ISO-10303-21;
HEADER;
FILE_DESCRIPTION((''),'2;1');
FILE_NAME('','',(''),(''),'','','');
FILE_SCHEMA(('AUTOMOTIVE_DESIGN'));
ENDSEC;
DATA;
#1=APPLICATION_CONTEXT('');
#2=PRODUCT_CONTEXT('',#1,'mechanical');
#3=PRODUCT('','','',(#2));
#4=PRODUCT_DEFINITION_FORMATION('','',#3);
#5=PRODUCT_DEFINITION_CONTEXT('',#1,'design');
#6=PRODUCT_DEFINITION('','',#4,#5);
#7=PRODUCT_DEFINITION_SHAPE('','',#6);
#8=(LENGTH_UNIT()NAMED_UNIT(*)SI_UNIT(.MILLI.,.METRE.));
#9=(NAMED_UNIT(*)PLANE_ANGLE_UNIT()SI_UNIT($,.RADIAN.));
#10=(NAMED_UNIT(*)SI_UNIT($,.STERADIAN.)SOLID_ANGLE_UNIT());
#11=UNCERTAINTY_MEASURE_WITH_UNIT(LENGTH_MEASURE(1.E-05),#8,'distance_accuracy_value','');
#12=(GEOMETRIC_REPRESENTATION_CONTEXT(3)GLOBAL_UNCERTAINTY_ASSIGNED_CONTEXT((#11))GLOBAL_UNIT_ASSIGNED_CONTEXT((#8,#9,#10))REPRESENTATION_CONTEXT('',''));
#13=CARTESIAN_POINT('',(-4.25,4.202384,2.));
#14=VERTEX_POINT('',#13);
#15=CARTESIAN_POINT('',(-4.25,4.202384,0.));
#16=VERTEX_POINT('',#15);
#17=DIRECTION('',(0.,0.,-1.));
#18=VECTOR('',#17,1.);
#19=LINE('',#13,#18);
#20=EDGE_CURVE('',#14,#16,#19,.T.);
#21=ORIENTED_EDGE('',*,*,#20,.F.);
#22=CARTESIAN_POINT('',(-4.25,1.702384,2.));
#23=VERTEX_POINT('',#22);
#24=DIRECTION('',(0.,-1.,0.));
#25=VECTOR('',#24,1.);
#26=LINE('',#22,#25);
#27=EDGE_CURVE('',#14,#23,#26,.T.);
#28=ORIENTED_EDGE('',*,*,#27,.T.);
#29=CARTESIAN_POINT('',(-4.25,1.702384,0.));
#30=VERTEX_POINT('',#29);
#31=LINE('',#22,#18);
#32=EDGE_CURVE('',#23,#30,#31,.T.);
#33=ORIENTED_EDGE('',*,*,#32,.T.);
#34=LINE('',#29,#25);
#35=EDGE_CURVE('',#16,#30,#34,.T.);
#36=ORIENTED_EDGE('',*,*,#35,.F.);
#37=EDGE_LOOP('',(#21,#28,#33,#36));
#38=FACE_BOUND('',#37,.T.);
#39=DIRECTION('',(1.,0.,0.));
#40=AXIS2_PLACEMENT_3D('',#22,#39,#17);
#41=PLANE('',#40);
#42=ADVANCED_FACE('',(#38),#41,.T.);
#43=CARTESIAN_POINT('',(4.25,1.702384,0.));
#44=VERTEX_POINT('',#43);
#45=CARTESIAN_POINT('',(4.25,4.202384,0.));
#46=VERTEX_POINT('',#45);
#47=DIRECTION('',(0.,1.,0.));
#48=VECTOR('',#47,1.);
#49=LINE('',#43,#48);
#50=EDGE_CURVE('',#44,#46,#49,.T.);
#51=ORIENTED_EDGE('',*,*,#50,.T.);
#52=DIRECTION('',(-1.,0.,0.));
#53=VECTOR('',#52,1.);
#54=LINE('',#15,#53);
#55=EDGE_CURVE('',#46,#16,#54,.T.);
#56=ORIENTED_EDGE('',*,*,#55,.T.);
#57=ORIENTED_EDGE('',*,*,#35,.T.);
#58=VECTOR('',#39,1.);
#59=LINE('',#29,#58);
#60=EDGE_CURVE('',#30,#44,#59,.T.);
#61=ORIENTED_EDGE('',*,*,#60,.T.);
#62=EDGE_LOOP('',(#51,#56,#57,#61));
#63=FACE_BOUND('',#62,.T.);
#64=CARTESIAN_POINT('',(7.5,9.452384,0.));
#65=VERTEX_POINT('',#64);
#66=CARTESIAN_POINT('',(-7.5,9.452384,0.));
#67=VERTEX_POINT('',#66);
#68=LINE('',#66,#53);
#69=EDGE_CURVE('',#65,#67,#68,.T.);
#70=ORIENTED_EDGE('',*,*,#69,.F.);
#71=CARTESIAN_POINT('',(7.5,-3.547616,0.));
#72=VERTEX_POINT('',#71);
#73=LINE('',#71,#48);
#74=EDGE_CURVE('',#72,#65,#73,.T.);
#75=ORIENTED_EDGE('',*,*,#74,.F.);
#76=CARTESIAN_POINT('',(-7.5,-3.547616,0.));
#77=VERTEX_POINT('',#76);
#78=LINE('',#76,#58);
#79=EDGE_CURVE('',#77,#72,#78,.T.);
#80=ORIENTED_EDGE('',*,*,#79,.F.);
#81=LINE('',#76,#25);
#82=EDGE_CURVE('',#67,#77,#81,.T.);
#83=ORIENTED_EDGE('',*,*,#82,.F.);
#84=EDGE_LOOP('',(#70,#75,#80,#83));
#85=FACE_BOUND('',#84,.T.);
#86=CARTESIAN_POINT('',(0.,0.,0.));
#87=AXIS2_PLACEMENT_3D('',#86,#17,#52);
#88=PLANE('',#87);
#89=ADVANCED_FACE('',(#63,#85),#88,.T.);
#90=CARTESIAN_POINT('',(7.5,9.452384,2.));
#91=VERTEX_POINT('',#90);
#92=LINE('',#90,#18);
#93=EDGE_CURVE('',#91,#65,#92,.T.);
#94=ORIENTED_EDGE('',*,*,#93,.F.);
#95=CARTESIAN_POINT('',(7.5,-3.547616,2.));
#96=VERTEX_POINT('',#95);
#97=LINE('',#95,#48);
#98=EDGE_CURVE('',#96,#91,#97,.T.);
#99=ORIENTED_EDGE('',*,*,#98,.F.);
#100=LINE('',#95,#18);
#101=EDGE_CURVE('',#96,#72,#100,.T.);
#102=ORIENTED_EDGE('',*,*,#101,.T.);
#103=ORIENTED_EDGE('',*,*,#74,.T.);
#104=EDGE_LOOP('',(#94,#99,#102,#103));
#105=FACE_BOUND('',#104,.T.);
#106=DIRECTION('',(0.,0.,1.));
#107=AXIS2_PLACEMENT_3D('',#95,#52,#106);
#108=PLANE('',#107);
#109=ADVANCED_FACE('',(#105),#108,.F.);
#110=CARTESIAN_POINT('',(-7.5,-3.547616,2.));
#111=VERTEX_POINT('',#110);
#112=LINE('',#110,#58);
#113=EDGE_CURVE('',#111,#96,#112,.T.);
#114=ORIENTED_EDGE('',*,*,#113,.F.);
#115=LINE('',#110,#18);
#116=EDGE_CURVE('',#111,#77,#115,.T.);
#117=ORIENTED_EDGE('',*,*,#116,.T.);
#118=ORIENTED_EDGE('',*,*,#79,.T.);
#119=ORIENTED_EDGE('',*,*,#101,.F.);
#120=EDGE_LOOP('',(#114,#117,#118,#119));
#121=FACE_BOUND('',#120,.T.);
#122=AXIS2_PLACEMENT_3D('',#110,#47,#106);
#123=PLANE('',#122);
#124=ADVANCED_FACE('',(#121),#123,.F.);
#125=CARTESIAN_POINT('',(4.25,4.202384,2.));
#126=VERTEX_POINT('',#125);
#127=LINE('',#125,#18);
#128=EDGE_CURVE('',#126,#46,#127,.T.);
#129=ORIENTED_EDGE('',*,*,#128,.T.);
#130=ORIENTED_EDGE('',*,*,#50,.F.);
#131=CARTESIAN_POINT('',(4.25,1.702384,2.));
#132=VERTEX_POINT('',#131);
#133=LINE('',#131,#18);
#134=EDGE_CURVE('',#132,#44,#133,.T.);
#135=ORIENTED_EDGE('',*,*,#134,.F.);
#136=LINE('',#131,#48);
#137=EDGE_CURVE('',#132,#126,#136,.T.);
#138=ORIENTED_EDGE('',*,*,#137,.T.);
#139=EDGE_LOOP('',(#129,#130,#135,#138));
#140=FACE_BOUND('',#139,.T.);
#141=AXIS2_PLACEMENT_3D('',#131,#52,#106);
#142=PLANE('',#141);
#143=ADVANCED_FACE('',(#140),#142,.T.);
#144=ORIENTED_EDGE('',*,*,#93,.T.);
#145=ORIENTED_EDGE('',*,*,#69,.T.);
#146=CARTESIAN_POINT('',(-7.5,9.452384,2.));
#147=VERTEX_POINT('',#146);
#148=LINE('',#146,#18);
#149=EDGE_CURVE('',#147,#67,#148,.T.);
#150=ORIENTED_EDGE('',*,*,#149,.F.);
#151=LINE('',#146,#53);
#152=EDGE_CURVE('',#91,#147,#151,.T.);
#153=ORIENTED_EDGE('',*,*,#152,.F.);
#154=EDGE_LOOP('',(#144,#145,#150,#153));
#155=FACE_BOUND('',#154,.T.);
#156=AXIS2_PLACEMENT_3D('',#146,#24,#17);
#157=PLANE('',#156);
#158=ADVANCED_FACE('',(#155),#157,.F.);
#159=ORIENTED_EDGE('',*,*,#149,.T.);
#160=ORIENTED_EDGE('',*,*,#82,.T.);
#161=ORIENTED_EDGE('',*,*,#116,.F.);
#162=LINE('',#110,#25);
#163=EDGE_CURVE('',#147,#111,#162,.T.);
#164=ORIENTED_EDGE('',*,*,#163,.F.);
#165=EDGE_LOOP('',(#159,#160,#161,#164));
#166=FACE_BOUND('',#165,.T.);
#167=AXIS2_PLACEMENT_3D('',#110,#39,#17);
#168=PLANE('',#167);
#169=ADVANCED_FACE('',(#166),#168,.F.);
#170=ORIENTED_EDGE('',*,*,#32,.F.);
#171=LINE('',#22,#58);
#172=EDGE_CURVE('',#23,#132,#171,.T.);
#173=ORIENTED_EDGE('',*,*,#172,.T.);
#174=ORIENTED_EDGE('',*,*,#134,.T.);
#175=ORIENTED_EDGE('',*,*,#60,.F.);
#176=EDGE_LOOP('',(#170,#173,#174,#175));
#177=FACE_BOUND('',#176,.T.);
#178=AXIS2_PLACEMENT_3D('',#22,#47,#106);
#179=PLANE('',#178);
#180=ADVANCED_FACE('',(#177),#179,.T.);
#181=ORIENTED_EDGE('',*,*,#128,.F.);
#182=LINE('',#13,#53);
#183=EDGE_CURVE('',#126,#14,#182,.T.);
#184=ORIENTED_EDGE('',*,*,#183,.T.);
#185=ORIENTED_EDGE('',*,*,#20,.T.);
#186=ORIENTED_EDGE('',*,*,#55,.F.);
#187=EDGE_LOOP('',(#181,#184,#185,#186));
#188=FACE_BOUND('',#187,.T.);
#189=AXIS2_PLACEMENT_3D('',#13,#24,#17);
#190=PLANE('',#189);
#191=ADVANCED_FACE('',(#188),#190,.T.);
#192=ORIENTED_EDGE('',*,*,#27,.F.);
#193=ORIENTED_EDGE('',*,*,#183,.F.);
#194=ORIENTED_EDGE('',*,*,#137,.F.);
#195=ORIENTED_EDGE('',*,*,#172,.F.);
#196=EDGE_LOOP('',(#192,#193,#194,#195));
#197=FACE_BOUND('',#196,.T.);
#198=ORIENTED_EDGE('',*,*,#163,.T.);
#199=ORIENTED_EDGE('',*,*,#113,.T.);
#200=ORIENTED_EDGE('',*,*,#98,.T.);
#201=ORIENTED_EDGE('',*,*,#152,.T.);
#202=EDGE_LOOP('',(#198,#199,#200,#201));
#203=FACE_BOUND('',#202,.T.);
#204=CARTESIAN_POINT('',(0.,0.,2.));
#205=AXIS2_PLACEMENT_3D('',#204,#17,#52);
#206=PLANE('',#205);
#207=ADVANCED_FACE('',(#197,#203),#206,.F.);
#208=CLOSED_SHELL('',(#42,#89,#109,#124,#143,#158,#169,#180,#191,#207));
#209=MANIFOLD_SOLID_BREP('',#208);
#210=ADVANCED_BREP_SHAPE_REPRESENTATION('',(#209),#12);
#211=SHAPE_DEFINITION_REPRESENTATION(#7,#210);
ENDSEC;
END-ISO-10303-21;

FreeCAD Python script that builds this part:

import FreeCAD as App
import Part
import Sketcher
Q = App.Units.Quantity

doc = App.newDocument("Part")
body = doc.addObject("PartDesign::Body", "Body")

# Sketch on XY plane
sketch1 = doc.addObject("Sketcher::SketchObject", "Sketch")
body.addObject(sketch1)
sketch1.AttachmentSupport = (doc.XY_Plane, [""])
sketch1.MapMode = "FlatFace"
sketch1.addGeometry(Part.LineSegment(App.Vector(-7.5, 9.452384, 0), App.Vector(-7.5, -3.547616, 0)), False)
sketch1.addGeometry(Part.LineSegment(App.Vector(-7.5, -3.547616, 0), App.Vector(7.5, -3.547616, 0)), False)
sketch1.addGeometry(Part.LineSegment(App.Vector(7.5, -3.547616, 0), App.Vector(7.5, 9.452384, 0)), False)
sketch1.addGeometry(Part.LineSegment(App.Vector(7.5, 9.452384, 0), App.Vector(-7.5, 9.452384, 0)), False)
sketch1.addGeometry(Part.LineSegment(App.Vector(4.25, 1.702384, 0), App.Vector(-4.25, 1.702384, 0)), False)
sketch1.addGeometry(Part.LineSegment(App.Vector(-4.25, 1.702384, 0), App.Vector(-4.25, 4.202384, 0)), False)
sketch1.addGeometry(Part.LineSegment(App.Vector(-4.25, 4.202384, 0), App.Vector(4.25, 4.202384, 0)), False)
sketch1.addGeometry(Part.LineSegment(App.Vector(4.25, 4.202384, 0), App.Vector(4.25, 1.702384, 0)), False)
sketch1.addConstraint(Sketcher.Constraint("Coincident", 0, 2, 1, 1))
sketch1.addConstraint(Sketcher.Constraint("Coincident", 1, 2, 2, 1))
sketch1.addConstraint(Sketcher.Constraint("Coincident", 2, 2, 3, 1))
sketch1.addConstraint(Sketcher.Constraint("Coincident", 3, 2, 0, 1))
sketch1.addConstraint(Sketcher.Constraint("Coincident", 4, 2, 5, 1))
sketch1.addConstraint(Sketcher.Constraint("Coincident", 5, 2, 6, 1))
sketch1.addConstraint(Sketcher.Constraint("Coincident", 6, 2, 7, 1))
sketch1.addConstraint(Sketcher.Constraint("Coincident", 7, 2, 4, 1))
sketch1.addConstraint(Sketcher.Constraint("Vertical", 0))
sketch1.addConstraint(Sketcher.Constraint("Horizontal", 1))
sketch1.addConstraint(Sketcher.Constraint("Vertical", 2))
sketch1.addConstraint(Sketcher.Constraint("Horizontal", 3))
sketch1.addConstraint(Sketcher.Constraint("Horizontal", 4))
sketch1.addConstraint(Sketcher.Constraint("Vertical", 5))
sketch1.addConstraint(Sketcher.Constraint("Horizontal", 6))
sketch1.addConstraint(Sketcher.Constraint("Vertical", 7))
sketch1.addConstraint(Sketcher.Constraint("DistanceX", 1, 1, 1, 2, Q("15 mm")))
sketch1.addConstraint(Sketcher.Constraint("DistanceY", 0, 2, 0, 1, Q("13 mm")))
sketch1.addConstraint(Sketcher.Constraint("DistanceX", 4, 2, 4, 1, Q("8.5 mm")))
sketch1.addConstraint(Sketcher.Constraint("DistanceY", 5, 1, 5, 2, Q("2.5 mm")))
sketch1.addConstraint(Sketcher.Constraint("DistanceX", 0, 2, -1, 1, Q("7.5 mm")))
sketch1.addConstraint(Sketcher.Constraint("DistanceX", 4, 2, -1, 1, Q("4.25 mm")))
sketch1.addConstraint(Sketcher.Constraint("DistanceY", 0, 2, 4, 2, Q("5.25 mm")))
sketch1.addConstraint(Sketcher.Constraint("DistanceY", 0, 2, -1, 1, Q("3.547616 mm")))
pad1 = doc.addObject("PartDesign::Pad", "Pad")
body.addObject(pad1)
pad1.Profile = sketch1
pad1.Length = 2

doc.recompute()
